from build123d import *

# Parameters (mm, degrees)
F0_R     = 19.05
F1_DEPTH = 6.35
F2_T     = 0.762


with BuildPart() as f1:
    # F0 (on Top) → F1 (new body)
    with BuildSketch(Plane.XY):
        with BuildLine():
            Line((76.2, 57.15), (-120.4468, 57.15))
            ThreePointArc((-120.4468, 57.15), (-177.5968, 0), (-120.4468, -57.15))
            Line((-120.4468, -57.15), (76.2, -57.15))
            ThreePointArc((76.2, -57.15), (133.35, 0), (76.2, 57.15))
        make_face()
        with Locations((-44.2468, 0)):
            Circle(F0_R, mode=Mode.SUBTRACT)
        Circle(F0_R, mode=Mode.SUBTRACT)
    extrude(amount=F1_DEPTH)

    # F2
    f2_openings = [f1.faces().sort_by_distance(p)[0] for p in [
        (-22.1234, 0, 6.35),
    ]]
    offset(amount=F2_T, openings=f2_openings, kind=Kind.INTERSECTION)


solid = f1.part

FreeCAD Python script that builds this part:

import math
import FreeCAD as App
import Part
import Sketcher
Q = App.Units.Quantity


def faces_at(feature, points):
    """Names of the faces that lie closest to the given points."""
    faces = feature.Shape.Faces
    near = lambda p: min(range(len(faces)), key=lambda i: faces[i].distToShape(Part.Vertex(*p))[0])
    return sorted({f"Face{near(p) + 1}" for p in points})

doc = App.newDocument("Part")
body = doc.addObject("PartDesign::Body", "Body")

# Sketch on XY plane
sketch1 = doc.addObject("Sketcher::SketchObject", "Sketch")
body.addObject(sketch1)
sketch1.AttachmentSupport = (doc.XY_Plane, [""])
sketch1.MapMode = "FlatFace"
sketch1.addGeometry([
    Part.LineSegment(App.Vector(76.2, 57.15, 0), App.Vector(-120.4468, 57.15, 0)),  # 0
    Part.ArcOfCircle(Part.Circle(App.Vector(-120.4468, 0, 0), App.Vector(0, 0, 1), 57.15), math.radians(90), math.radians(270)),  # 1
    Part.LineSegment(App.Vector(-120.4468, -57.15, 0), App.Vector(76.2, -57.15, 0)),  # 2
    Part.ArcOfCircle(Part.Circle(App.Vector(76.2, 0, 0), App.Vector(0, 0, 1), 57.15), math.radians(-90), math.radians(90)),  # 3
    Part.Circle(App.Vector(-44.2468, 0, 0), App.Vector(0, 0, 1), 19.05),  # 4
    Part.Circle(App.Vector(0, 0, 0), App.Vector(0, 0, 1), 19.05),  # 5
], False)
sketch1.addConstraint([
    Sketcher.Constraint("Tangent", 0, 2, 1, 1),
    Sketcher.Constraint("Tangent", 1, 2, 2, 1),
    Sketcher.Constraint("Tangent", 2, 2, 3, 1),
    Sketcher.Constraint("Tangent", 3, 2, 0, 1),
    Sketcher.Constraint("Horizontal", 0),
    Sketcher.Constraint("Horizontal", 2),
    Sketcher.Constraint("Coincident", 5, 3, -1, 1),
    Sketcher.Constraint("Equal", 4, 5),
    Sketcher.Constraint("PointOnObject", 1, 3, -1),
    Sketcher.Constraint("PointOnObject", 4, 3, -1),
    Sketcher.Constraint("Diameter", 4, Q("1.5 in")),
    Sketcher.Constraint("Radius", 1, Q("2.25 in")),
    Sketcher.Constraint("DistanceX", -1, 1, 3, 3, Q("3 in")),
    Sketcher.Constraint("DistanceX", 1, 3, 4, 3, Q("3 in")),
    Sketcher.Constraint("DistanceX", 0, 2, 0, 1, Q("7.742 in")),
])
pad1 = doc.addObject("PartDesign::Pad", "Pad")
body.addObject(pad1)
pad1.Profile = sketch1
pad1.Length = Q("0.25 in")
doc.recompute()

thickness = doc.addObject("PartDesign::Thickness", "Thickness")
body.addObject(thickness)
thickness.Base = (pad1, faces_at(pad1, [(-22.123, 0, 6.35)]))
thickness.Value = Q("0.03 in")
thickness.Reversed = False
thickness.Join = "Intersection"

doc.recompute()
